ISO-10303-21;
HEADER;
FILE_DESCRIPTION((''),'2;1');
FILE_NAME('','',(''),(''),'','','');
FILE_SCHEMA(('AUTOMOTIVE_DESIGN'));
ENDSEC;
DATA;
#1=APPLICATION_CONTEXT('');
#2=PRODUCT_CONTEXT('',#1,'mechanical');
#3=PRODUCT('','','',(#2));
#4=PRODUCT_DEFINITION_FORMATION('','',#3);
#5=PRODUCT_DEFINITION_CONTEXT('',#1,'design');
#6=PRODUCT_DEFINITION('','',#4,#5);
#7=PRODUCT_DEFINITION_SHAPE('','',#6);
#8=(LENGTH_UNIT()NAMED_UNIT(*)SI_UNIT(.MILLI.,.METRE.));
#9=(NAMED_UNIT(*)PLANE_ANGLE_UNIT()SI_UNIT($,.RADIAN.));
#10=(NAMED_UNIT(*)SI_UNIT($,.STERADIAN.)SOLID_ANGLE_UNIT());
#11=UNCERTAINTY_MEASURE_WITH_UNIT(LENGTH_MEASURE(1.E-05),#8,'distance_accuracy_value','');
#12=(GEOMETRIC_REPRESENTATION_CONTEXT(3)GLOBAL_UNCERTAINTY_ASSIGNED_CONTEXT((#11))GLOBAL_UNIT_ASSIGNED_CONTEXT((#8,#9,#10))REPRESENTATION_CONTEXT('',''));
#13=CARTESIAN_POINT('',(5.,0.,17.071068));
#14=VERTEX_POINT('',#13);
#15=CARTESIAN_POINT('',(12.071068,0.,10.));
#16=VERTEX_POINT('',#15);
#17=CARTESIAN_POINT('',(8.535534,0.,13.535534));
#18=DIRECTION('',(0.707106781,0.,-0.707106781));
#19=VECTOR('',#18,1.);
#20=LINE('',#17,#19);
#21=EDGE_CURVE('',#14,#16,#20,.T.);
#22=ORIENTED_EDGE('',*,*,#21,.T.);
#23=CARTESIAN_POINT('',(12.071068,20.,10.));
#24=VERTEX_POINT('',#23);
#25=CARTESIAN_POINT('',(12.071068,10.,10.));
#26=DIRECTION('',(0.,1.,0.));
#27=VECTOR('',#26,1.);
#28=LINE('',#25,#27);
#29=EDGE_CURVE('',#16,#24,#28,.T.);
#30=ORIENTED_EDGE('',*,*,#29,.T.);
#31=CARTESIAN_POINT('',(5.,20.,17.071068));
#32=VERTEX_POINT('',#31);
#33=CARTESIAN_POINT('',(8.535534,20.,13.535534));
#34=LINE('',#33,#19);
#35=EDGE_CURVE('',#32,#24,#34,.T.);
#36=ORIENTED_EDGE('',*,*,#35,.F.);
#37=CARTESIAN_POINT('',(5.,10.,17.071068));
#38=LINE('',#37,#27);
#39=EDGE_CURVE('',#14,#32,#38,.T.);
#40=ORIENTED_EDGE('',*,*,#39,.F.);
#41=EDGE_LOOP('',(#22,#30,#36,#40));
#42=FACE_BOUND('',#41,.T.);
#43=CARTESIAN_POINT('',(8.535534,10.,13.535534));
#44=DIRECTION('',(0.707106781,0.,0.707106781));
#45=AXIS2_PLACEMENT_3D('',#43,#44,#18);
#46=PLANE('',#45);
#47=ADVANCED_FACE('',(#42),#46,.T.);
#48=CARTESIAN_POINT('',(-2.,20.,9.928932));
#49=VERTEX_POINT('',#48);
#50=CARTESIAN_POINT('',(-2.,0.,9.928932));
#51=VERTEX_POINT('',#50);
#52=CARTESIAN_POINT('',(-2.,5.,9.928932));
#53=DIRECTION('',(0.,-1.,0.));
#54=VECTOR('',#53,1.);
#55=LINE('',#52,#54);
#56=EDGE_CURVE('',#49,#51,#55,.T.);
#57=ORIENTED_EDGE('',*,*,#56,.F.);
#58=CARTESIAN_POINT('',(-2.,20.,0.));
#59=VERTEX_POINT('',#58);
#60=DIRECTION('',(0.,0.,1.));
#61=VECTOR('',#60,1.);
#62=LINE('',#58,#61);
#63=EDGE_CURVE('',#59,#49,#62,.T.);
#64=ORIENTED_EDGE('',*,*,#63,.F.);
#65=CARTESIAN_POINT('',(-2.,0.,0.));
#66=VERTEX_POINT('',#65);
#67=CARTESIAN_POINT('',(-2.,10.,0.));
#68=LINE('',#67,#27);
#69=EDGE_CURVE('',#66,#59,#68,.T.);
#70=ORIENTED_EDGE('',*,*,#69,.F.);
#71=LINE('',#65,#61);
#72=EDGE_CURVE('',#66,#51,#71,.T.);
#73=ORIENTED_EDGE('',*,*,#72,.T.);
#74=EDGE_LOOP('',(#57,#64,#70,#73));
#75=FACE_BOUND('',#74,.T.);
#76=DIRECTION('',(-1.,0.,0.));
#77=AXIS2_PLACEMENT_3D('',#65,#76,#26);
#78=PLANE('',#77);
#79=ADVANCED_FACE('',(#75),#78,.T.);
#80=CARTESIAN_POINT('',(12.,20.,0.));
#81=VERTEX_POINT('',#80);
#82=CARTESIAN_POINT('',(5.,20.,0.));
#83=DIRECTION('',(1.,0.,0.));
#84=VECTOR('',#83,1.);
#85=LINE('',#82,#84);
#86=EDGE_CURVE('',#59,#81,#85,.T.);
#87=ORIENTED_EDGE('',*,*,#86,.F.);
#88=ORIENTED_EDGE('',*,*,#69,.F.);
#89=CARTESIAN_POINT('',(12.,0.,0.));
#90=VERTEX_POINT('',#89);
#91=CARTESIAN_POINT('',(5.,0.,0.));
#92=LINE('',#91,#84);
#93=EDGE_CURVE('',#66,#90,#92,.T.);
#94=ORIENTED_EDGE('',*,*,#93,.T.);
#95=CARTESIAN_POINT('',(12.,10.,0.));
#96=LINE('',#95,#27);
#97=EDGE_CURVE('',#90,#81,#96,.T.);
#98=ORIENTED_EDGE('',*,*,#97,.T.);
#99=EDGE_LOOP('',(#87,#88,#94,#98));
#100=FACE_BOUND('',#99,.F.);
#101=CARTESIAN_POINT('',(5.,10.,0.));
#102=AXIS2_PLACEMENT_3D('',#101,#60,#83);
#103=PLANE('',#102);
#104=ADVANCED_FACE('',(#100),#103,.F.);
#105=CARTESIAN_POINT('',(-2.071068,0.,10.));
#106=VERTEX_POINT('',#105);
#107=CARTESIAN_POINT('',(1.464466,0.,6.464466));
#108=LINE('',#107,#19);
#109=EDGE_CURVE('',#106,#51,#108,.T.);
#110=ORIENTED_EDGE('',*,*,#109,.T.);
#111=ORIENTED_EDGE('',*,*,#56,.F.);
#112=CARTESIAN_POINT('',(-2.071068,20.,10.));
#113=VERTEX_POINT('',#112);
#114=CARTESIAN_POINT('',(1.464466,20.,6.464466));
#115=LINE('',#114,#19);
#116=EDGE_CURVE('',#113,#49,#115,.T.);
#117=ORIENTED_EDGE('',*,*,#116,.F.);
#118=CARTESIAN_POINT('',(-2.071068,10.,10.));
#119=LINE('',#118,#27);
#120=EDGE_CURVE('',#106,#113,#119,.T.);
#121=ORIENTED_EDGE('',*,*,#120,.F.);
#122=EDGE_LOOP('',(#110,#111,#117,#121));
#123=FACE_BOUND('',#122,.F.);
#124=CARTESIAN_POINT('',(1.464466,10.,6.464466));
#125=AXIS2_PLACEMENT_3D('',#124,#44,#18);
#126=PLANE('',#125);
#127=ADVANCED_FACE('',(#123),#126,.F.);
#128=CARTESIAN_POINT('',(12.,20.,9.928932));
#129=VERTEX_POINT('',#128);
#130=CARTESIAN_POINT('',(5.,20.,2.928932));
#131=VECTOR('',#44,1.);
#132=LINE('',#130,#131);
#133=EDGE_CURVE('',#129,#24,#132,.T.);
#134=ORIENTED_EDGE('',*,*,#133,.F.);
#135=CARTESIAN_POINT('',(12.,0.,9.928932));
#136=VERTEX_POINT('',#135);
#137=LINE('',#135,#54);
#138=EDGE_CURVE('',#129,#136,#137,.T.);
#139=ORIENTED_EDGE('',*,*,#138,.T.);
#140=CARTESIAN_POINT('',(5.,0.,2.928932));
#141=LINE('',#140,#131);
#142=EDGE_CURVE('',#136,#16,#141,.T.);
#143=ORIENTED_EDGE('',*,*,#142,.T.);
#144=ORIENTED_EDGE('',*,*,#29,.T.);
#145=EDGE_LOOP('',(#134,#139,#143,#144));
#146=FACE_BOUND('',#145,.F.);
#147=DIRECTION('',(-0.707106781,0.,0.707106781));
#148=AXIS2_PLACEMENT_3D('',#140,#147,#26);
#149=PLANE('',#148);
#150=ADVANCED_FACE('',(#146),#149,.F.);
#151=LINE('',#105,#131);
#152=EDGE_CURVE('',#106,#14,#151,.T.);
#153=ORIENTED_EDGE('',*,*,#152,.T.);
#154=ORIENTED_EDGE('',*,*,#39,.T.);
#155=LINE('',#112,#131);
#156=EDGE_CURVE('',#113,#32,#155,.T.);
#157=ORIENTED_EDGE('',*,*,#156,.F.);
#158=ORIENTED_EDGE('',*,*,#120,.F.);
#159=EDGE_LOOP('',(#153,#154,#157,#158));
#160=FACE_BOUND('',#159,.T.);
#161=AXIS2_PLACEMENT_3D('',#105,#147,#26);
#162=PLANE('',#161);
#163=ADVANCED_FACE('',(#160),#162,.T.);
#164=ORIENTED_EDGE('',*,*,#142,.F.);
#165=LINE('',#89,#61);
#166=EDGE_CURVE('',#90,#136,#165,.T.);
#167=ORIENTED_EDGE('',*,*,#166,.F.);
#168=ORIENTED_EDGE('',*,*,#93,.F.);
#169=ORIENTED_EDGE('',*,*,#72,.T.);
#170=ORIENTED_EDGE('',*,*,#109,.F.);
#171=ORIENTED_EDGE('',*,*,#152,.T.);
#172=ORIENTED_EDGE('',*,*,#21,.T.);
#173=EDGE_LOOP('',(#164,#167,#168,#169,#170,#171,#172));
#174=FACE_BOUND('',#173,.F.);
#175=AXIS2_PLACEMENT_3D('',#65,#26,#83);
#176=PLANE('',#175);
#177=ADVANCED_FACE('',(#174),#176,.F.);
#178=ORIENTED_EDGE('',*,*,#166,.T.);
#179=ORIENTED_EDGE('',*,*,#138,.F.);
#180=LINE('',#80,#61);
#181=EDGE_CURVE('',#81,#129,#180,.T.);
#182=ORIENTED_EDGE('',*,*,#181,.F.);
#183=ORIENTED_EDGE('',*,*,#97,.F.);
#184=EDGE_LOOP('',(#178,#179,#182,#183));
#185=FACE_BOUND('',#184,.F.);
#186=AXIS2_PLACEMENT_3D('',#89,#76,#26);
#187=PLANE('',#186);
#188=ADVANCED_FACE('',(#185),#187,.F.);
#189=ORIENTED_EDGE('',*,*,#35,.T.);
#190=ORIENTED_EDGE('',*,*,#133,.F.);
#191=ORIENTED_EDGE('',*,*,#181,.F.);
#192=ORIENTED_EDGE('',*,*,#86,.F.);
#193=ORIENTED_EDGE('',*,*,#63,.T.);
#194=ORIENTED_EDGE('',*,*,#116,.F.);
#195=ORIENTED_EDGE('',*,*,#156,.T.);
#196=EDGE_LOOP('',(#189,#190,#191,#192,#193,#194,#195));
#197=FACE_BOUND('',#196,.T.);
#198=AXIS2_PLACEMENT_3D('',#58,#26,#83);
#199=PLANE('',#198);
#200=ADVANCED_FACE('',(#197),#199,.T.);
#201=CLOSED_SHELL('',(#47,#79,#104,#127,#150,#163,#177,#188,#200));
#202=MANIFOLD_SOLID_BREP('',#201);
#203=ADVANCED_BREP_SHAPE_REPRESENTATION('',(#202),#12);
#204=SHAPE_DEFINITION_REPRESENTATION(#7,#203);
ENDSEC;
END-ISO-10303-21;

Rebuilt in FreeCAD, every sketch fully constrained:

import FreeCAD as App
import Part
import Sketcher

V = App.Vector

doc = App.newDocument("Part")
body = doc.addObject("PartDesign::Body", "Body")

# Sketch on XY plane
sketch1 = body.newObject("Sketcher::SketchObject", "Sketch")
sketch1.AttachmentSupport = (doc.getObject("XY_Plane"), [""])
sketch1.MapMode = "FlatFace"
sketch1.addGeometry(Part.LineSegment(V(-2, 20, 0), V(-2, 0, 0)), False)
sketch1.addGeometry(Part.LineSegment(V(-2, 0, 0), V(12, 0, 0)), False)
sketch1.addGeometry(Part.LineSegment(V(12, 0, 0), V(12, 20, 0)), False)
sketch1.addGeometry(Part.LineSegment(V(12, 20, 0), V(-2, 20, 0)), False)
sketch1.addConstraint(Sketcher.Constraint("Coincident", 0, 2, 1, 1))
sketch1.addConstraint(Sketcher.Constraint("Coincident", 1, 2, 2, 1))
sketch1.addConstraint(Sketcher.Constraint("Coincident", 2, 2, 3, 1))
sketch1.addConstraint(Sketcher.Constraint("Coincident", 3, 2, 0, 1))
sketch1.addConstraint(Sketcher.Constraint("Vertical", 0))
sketch1.addConstraint(Sketcher.Constraint("Horizontal", 1))
sketch1.addConstraint(Sketcher.Constraint("Vertical", 2))
sketch1.addConstraint(Sketcher.Constraint("Horizontal", 3))
sketch1.addConstraint(Sketcher.Constraint("PointOnObject", 0, 2, -1))
sketch1.addConstraint(Sketcher.Constraint("DistanceX", 1, 1, 1, 2, 14.0))
sketch1.addConstraint(Sketcher.Constraint("DistanceY", 0, 2, 0, 1, 20.0))
sketch1.addConstraint(Sketcher.Constraint("DistanceX", 0, 2, -1, 1, 2.0))
pad1 = body.newObject("PartDesign::Pad", "Pad")
pad1.Profile = sketch1
pad1.Length = 10
body2 = doc.addObject("PartDesign::Body", "Body001")

# Sketch on XY plane
sketch2 = body2.newObject("Sketcher::SketchObject", "Sketch001")
sketch2.AttachmentSupport = (doc.getObject("XY_Plane001"), [""])
sketch2.MapMode = "FlatFace"
sketch2.addGeometry(Part.LineSegment(V(0, 20, 0), V(0, 0, 0)), False)
sketch2.addGeometry(Part.LineSegment(V(0, 0, 0), V(10, 0, 0)), False)
sketch2.addGeometry(Part.LineSegment(V(10, 0, 0), V(10, 20, 0)), False)
sketch2.addGeometry(Part.LineSegment(V(10, 20, 0), V(0, 20, 0)), False)
sketch2.addConstraint(Sketcher.Constraint("Coincident", 0, 2, 1, 1))
sketch2.addConstraint(Sketcher.Constraint("Coincident", 1, 2, 2, 1))
sketch2.addConstraint(Sketcher.Constraint("Coincident", 2, 2, 3, 1))
sketch2.addConstraint(Sketcher.Constraint("Coincident", 3, 2, 0, 1))
sketch2.addConstraint(Sketcher.Constraint("Vertical", 0))
sketch2.addConstraint(Sketcher.Constraint("Horizontal", 1))
sketch2.addConstraint(Sketcher.Constraint("Vertical", 2))
sketch2.addConstraint(Sketcher.Constraint("Horizontal", 3))
sketch2.addConstraint(Sketcher.Constraint("Coincident", 0, 2, -1, 1))
sketch2.addConstraint(Sketcher.Constraint("DistanceX", 1, 1, 1, 2, 10.0))
sketch2.addConstraint(Sketcher.Constraint("DistanceY", 0, 2, 0, 1, 20.0))
pad2 = body2.newObject("PartDesign::Pad", "Pad001")
pad2.Profile = sketch2
pad2.Length = 10
body3 = doc.addObject("PartDesign::Body", "Body002")
doc.recompute()

body2.Placement = App.Placement(V(-2.071068, 0, 10), App.Rotation(V(0, 1, 0), 45))
boolean = body3.newObject("PartDesign::Boolean", "Boolean")
boolean.Type = "Fuse"
boolean.addObjects([body2])
doc.recompute()

boolean2 = body3.newObject("PartDesign::Boolean", "Boolean001")
boolean2.Type = "Fuse"
boolean2.addObjects([body])

doc.recompute()
